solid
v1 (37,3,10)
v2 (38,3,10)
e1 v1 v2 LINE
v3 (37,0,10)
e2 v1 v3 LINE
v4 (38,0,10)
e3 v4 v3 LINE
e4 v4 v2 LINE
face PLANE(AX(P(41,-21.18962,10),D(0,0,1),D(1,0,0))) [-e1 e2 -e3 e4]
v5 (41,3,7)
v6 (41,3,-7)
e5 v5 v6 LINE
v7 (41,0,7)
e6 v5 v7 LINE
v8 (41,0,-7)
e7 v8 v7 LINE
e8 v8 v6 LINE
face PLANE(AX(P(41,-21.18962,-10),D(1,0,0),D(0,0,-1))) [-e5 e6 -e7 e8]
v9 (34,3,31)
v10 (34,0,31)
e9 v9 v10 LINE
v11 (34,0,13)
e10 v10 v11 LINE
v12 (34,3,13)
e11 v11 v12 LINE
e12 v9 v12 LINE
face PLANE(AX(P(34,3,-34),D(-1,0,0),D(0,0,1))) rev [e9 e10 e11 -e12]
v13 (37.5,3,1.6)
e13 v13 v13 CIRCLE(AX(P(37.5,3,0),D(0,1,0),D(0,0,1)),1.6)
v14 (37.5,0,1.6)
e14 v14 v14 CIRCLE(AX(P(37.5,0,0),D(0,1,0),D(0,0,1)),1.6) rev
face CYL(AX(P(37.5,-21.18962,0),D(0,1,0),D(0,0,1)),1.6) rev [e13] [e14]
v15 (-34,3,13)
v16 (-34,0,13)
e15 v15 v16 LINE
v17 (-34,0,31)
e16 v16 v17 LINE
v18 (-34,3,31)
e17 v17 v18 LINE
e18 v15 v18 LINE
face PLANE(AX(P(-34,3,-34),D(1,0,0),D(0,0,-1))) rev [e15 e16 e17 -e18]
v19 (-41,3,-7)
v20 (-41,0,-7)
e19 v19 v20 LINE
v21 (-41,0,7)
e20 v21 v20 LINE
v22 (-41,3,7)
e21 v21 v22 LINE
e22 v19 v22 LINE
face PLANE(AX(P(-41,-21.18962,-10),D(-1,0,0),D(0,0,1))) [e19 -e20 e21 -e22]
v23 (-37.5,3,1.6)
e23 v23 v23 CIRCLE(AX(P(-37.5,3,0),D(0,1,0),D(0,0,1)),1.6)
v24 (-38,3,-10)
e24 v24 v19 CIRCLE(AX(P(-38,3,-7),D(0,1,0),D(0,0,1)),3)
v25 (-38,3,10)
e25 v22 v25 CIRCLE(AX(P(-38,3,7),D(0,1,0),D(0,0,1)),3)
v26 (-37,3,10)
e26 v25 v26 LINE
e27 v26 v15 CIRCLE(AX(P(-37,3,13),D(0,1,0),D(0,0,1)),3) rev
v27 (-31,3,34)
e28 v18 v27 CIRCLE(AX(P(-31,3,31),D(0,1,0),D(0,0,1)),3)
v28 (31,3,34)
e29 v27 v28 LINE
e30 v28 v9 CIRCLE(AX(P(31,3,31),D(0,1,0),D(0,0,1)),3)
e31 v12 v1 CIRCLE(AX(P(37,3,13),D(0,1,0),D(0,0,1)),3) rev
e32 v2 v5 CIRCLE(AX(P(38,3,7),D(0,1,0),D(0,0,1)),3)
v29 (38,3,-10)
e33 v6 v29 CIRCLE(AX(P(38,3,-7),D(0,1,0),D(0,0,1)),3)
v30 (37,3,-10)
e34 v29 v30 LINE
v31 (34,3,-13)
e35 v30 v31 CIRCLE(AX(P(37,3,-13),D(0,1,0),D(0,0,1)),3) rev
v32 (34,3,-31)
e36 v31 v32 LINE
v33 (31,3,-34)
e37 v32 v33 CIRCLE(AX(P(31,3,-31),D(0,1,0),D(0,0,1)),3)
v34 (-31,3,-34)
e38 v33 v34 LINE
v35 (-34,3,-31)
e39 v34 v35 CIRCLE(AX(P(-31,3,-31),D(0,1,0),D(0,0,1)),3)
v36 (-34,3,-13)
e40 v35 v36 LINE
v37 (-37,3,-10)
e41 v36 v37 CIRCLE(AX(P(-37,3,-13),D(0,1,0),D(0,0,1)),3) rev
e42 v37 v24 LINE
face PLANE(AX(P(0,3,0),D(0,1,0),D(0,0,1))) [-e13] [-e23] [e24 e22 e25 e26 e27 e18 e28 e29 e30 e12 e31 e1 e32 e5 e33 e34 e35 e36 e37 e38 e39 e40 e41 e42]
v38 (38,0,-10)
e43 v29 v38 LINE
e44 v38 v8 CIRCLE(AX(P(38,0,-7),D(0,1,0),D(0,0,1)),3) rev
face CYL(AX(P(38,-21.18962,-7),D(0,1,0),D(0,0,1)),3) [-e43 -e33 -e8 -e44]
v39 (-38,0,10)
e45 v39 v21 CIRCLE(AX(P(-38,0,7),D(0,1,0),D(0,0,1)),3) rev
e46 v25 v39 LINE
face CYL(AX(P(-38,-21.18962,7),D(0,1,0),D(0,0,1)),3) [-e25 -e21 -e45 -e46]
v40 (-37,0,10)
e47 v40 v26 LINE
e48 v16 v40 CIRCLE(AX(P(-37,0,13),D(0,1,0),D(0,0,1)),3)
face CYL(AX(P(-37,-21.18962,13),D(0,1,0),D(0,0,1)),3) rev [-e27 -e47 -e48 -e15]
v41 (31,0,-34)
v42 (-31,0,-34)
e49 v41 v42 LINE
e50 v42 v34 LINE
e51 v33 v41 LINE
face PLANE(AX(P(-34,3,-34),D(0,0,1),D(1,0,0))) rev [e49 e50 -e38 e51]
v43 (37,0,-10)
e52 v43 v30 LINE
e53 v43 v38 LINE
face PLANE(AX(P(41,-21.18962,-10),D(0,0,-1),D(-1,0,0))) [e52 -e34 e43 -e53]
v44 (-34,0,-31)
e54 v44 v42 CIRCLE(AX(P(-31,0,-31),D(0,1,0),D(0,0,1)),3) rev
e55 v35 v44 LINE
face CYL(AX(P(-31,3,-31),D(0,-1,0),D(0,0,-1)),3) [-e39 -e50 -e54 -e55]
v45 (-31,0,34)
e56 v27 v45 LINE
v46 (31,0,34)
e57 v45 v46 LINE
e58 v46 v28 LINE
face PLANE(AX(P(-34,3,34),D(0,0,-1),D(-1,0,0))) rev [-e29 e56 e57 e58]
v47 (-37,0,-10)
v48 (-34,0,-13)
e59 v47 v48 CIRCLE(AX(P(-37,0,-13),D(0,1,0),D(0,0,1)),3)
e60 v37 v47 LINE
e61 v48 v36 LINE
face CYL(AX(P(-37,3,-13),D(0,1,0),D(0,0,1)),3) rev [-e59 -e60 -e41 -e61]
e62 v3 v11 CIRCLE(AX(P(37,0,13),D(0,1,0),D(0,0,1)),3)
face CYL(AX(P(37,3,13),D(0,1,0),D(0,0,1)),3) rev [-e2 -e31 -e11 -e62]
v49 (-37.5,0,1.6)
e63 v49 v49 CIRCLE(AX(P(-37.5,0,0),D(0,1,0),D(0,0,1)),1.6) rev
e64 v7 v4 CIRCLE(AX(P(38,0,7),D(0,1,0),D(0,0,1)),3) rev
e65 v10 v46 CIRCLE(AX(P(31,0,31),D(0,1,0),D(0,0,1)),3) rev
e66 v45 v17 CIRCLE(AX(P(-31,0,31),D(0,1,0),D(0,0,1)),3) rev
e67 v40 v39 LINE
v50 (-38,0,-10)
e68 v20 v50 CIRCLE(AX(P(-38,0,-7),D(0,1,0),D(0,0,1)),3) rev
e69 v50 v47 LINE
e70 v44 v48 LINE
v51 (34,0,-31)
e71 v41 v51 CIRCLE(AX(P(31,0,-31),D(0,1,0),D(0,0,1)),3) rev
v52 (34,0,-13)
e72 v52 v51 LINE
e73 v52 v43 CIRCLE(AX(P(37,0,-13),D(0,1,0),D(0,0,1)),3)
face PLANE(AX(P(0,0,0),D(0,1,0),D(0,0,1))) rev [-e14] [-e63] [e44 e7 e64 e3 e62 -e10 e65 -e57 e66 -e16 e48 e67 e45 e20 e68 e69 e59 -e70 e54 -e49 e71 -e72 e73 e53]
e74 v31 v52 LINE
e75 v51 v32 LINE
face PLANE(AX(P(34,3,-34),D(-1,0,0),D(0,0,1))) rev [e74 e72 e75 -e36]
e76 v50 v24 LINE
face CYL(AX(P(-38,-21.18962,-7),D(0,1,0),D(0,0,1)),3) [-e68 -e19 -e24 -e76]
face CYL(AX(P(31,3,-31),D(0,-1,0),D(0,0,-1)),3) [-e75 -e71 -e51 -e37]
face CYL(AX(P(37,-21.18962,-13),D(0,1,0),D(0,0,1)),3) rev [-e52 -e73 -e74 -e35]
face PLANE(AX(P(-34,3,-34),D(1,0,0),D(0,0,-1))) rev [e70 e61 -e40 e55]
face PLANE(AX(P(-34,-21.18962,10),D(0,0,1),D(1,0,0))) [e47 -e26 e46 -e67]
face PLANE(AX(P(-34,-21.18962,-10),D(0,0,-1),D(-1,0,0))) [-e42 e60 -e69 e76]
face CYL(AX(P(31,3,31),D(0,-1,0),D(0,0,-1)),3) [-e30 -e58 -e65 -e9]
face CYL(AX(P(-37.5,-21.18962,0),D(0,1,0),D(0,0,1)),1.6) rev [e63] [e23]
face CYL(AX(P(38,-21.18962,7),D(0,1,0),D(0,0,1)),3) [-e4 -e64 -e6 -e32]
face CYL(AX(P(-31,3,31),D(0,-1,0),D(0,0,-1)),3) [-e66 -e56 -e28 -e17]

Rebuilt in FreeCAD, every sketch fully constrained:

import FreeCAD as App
import Part
import Sketcher
from FreeCAD import Vector


def edges_at(feature, points):
    """Names of the edges that pass closest to the given points."""
    edges = feature.Shape.Edges
    near = lambda p: min(range(len(edges)), key=lambda i: edges[i].distToShape(Part.Vertex(*p))[0])
    return sorted({f"Edge{near(p) + 1}" for p in points})

doc = App.newDocument("Part")
body = doc.addObject("PartDesign::Body", "Body")

sketch1 = body.newObject("Sketcher::SketchObject", "Sketch")
sketch1.AttachmentSupport = (doc.getObject("XZ_Plane"), [""])
sketch1.MapMode = "FlatFace"
sketch1.addGeometry([
    Part.LineSegment(Vector(-34, -34, 0), Vector(-34, 34, 0)),
    Part.LineSegment(Vector(-34, 34, 0), Vector(34, 34, 0)),
    Part.LineSegment(Vector(34, 34, 0), Vector(34, -34, 0)),
    Part.LineSegment(Vector(34, -34, 0), Vector(-34, -34, 0)),
], False)
sketch1.addConstraint([
    Sketcher.Constraint("Coincident", 0, 2, 1, 1),
    Sketcher.Constraint("Coincident", 1, 2, 2, 1),
    Sketcher.Constraint("Coincident", 2, 2, 3, 1),
    Sketcher.Constraint("Coincident", 3, 2, 0, 1),
    Sketcher.Constraint("Vertical", 0),
    Sketcher.Constraint("Horizontal", 1),
    Sketcher.Constraint("Vertical", 2),
    Sketcher.Constraint("Horizontal", 3),
    Sketcher.Constraint("Symmetric", 0, 2, 2, 2, -1, 1),
    Sketcher.Constraint("Equal", 3, 0),
    Sketcher.Constraint("DistanceX", 1, 1, 1, 2, 68.0),
])
pad1 = body.newObject("PartDesign::Pad", "Pad")
pad1.Profile = sketch1
pad1.Length = 3
pad1.Reversed = True

sketch2 = body.newObject("Sketcher::SketchObject", "Sketch001")
sketch2.AttachmentSupport = (doc.getObject("XZ_Plane"), [""])
sketch2.MapMode = "FlatFace"
sketch2.AttachmentOffset = App.Placement(Vector(0, 0, -3), App.Rotation())
sketch2.addGeometry([
    Part.LineSegment(Vector(34, -10, 0), Vector(34, 10, 0)),
    Part.LineSegment(Vector(34, 10, 0), Vector(41, 10, 0)),
    Part.LineSegment(Vector(41, 10, 0), Vector(41, -10, 0)),
    Part.LineSegment(Vector(41, -10, 0), Vector(34, -10, 0)),
    Part.Circle(Vector(37.5, 0, 0), Vector(0, 0, 1), 1.6),
    Part.LineSegment(Vector(-41, -10, 0), Vector(-41, 10, 0)),
    Part.LineSegment(Vector(-41, 10, 0), Vector(-34, 10, 0)),
    Part.LineSegment(Vector(-34, 10, 0), Vector(-34, -10, 0)),
    Part.LineSegment(Vector(-34, -10, 0), Vector(-41, -10, 0)),
    Part.Circle(Vector(-37.5, 0, 0), Vector(0, 0, 1), 1.6),
], False)
sketch2.addConstraint([
    Sketcher.Constraint("Coincident", 0, 2, 1, 1),
    Sketcher.Constraint("Coincident", 1, 2, 2, 1),
    Sketcher.Constraint("Coincident", 2, 2, 3, 1),
    Sketcher.Constraint("Coincident", 3, 2, 0, 1),
    Sketcher.Constraint("Coincident", 5, 2, 6, 1),
    Sketcher.Constraint("Coincident", 6, 2, 7, 1),
    Sketcher.Constraint("Coincident", 7, 2, 8, 1),
    Sketcher.Constraint("Coincident", 8, 2, 5, 1),
    Sketcher.Constraint("Vertical", 0),
    Sketcher.Constraint("Horizontal", 1),
    Sketcher.Constraint("Vertical", 2),
    Sketcher.Constraint("Horizontal", 3),
    Sketcher.Constraint("Vertical", 5),
    Sketcher.Constraint("Horizontal", 6),
    Sketcher.Constraint("Vertical", 7),
    Sketcher.Constraint("Horizontal", 8),
    Sketcher.Constraint("Equal", 4, 9),
    Sketcher.Constraint("Symmetric", 4, 3, 9, 3, -1, 1),
    Sketcher.Constraint("Symmetric", 2, 2, 5, 2, -1, 1),
    Sketcher.Constraint("Symmetric", 0, 2, 7, 2, -1, 1),
    Sketcher.Constraint("PointOnObject", 4, 3, -1),
    Sketcher.Constraint("Horizontal", 1, 2, 5, 2),
    Sketcher.Constraint("Diameter", 4, 3.2),
    Sketcher.Constraint("DistanceX", 1, 1, 1, 2, 7.0),
    Sketcher.Constraint("DistanceY", 0, 1, 0, 2, 20.0),
    Sketcher.Constraint("DistanceX", -1, 1, 0, 2, 34.0),
    Sketcher.Constraint("DistanceX", 9, 3, 4, 3, 75.0),
])
pad2 = body.newObject("PartDesign::Pad", "Pad001")
pad2.Profile = sketch2
pad2.Length = 3
doc.recompute()

fillet = body.newObject("PartDesign::Fillet", "Fillet")
fillet.Base = (pad2, edges_at(pad2, [
    (34, 1.5, 10),
    (41, 1.5, 10),
    (41, 1.5, -10),
    (34, 1.5, -10),
    (-41, 1.5, -10),
    (-41, 1.5, 10),
    (-34, 1.5, 10),
    (-34, 1.5, -10),
    (-34, 1.5, 34),
    (34, 1.5, 34),
    (34, 1.5, -34),
    (-34, 1.5, -34),
]))
fillet.Radius = 3

doc.recompute()
